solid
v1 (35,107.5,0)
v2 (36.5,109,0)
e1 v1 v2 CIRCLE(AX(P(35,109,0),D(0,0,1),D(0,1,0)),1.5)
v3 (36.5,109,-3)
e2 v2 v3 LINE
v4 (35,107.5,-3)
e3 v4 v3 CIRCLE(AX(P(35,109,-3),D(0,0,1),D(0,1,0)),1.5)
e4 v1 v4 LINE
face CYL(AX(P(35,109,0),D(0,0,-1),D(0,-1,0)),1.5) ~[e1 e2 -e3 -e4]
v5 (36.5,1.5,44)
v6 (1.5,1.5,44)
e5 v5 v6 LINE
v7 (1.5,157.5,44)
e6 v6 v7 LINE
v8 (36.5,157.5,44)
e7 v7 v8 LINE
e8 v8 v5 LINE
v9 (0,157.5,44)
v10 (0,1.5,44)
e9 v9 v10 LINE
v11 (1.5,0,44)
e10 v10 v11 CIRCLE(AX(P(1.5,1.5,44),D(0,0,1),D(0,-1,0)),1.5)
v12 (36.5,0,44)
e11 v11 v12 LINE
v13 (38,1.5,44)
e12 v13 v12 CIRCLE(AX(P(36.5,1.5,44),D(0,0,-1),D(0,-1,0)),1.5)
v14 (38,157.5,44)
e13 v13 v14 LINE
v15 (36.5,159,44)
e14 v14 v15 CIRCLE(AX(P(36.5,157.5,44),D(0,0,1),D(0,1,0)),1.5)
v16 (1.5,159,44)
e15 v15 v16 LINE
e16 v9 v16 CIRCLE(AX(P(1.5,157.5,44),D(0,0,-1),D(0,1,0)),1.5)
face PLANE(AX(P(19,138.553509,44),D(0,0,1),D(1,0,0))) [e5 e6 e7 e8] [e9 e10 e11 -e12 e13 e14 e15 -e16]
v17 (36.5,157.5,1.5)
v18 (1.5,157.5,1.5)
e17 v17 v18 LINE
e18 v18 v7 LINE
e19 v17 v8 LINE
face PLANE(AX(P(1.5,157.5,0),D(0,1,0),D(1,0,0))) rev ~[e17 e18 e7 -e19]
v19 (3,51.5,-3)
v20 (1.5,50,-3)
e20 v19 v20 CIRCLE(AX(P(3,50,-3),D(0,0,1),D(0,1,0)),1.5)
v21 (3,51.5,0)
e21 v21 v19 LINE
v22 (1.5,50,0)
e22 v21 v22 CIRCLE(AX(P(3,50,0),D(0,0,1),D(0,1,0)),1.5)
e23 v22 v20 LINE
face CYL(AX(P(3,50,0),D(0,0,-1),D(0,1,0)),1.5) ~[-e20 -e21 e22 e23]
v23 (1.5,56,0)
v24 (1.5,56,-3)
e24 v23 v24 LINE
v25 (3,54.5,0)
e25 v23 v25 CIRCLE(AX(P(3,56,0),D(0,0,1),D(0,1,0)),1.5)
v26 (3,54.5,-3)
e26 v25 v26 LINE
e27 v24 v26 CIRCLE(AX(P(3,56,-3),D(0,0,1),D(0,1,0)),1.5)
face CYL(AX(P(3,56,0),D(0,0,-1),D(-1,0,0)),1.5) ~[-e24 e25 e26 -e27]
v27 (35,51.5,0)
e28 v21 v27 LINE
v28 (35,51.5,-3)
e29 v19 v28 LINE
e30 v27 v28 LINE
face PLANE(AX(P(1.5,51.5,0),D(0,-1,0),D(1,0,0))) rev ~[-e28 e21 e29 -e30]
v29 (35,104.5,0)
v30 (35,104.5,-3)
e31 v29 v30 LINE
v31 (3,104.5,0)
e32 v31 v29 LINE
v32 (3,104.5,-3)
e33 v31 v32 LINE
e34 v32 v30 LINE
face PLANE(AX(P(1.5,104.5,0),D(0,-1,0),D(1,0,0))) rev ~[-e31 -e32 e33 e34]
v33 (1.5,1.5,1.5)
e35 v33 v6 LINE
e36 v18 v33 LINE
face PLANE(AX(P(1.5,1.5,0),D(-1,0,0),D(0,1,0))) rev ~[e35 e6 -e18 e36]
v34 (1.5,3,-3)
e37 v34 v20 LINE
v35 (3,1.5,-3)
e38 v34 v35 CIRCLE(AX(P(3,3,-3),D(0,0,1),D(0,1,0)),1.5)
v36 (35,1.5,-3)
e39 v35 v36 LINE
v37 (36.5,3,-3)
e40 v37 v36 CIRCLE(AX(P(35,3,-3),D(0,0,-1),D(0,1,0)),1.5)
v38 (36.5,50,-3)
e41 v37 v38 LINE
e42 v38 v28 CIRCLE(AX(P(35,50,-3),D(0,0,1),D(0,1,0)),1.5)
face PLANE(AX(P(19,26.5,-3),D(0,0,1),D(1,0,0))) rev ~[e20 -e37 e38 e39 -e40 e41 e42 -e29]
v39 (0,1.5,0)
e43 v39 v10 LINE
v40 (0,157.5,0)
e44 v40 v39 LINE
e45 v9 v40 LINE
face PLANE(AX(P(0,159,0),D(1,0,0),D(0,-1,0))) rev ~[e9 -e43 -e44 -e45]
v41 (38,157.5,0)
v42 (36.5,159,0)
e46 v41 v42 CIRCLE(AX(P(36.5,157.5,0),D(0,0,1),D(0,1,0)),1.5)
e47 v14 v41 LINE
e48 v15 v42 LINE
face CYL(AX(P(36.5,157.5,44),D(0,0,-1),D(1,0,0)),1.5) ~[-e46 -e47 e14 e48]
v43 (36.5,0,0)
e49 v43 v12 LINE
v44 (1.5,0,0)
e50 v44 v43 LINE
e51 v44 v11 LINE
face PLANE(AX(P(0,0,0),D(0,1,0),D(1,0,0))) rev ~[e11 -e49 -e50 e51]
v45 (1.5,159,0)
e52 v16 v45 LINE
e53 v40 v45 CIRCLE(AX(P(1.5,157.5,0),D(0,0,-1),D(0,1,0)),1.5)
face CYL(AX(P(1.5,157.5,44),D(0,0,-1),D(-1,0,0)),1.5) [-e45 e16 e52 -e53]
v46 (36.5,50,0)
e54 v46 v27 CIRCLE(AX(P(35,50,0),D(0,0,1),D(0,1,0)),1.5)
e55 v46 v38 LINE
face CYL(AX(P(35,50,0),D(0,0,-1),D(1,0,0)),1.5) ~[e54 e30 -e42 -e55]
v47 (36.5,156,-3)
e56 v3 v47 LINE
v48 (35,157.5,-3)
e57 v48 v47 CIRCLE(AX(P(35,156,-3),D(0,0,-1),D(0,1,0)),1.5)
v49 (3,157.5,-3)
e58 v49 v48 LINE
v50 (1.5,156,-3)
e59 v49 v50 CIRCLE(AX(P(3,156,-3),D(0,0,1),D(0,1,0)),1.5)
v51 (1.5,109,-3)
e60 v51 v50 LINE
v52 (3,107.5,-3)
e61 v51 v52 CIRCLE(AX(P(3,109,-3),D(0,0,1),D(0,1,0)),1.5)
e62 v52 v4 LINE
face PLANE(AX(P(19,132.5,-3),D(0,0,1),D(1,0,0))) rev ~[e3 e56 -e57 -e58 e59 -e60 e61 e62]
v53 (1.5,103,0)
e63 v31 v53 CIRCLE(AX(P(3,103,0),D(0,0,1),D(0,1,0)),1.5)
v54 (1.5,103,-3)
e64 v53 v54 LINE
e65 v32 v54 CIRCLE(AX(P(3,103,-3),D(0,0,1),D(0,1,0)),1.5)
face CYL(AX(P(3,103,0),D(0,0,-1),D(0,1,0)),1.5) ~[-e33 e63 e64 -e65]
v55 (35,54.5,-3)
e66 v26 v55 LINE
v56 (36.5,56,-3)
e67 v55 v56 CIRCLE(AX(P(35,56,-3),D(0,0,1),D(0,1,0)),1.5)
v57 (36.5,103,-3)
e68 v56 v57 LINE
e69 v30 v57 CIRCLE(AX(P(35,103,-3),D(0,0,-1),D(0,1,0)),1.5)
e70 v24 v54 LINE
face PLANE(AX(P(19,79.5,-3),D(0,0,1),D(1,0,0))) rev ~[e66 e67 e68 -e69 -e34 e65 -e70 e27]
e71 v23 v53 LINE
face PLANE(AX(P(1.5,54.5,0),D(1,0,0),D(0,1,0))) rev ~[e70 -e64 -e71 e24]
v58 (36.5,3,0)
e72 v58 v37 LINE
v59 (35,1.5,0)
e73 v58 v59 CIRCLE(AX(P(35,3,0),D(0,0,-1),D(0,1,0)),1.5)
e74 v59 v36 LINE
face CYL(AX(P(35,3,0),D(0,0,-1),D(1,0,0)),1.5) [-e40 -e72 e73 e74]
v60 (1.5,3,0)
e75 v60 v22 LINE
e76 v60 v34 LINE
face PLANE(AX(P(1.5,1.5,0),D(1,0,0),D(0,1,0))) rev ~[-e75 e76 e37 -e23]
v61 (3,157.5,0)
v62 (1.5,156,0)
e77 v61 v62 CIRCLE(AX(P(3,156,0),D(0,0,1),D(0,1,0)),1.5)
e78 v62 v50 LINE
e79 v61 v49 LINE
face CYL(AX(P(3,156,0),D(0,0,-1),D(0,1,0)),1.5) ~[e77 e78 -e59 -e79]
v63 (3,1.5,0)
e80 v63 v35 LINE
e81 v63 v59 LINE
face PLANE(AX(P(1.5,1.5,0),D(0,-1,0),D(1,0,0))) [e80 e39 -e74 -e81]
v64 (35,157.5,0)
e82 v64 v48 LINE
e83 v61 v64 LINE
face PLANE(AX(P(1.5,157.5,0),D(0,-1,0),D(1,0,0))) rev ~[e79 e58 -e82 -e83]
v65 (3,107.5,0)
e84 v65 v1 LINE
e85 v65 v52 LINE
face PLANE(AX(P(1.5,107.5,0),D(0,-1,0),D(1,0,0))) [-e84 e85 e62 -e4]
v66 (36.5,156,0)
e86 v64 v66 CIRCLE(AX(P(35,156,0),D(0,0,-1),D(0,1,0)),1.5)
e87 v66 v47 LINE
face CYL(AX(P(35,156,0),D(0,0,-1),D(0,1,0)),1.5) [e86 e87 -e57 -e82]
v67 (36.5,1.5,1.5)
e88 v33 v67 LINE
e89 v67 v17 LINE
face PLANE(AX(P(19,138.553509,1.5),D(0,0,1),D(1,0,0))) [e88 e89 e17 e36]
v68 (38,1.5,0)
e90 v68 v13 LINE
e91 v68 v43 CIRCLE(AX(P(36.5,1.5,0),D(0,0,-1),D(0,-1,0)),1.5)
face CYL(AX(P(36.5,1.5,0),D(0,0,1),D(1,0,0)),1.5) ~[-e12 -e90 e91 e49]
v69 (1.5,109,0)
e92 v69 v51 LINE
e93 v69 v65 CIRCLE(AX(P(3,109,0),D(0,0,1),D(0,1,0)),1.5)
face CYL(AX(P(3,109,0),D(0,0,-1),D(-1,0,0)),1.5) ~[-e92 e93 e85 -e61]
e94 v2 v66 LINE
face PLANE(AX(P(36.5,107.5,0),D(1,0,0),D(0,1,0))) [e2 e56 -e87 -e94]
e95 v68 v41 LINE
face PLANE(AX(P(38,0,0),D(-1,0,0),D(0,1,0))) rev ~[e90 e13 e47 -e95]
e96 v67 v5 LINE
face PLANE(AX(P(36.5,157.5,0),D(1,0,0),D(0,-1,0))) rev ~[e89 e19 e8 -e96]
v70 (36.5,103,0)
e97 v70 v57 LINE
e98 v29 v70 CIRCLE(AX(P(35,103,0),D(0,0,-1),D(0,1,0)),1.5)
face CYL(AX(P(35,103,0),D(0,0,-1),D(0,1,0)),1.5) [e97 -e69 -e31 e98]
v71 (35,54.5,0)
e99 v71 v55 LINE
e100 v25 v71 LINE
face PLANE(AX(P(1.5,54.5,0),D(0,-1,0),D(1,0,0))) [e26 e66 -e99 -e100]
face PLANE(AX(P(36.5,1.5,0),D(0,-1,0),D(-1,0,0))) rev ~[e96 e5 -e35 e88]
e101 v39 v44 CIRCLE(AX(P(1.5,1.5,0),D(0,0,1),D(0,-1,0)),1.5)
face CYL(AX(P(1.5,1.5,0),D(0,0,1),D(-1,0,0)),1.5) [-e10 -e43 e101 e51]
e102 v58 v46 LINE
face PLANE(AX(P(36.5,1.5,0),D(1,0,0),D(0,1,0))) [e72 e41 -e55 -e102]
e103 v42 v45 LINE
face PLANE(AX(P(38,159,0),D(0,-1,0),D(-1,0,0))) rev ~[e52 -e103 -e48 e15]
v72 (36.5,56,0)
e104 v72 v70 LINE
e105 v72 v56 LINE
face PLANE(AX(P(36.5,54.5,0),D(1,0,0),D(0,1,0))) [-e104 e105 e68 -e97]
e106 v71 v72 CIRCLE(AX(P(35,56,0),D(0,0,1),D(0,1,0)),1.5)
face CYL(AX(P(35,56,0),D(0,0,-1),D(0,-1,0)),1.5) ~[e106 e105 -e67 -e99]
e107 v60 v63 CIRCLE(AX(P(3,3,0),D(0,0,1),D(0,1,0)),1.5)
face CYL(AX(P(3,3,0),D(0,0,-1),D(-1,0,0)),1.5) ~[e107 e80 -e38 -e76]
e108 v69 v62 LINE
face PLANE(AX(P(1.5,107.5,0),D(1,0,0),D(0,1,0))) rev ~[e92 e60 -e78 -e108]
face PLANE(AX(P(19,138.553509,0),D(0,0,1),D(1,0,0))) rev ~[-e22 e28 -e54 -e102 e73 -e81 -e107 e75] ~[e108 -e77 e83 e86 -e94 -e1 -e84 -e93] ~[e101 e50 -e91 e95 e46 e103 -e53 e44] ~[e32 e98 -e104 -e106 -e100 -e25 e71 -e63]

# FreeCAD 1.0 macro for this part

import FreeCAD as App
import Part
import Sketcher
from FreeCAD import Vector
Q = App.Units.Quantity


def edges_at(feature, points):
    """Names of the edges that pass closest to the given points."""
    edges = feature.Shape.Edges
    near = lambda p: min(range(len(edges)), key=lambda i: edges[i].distToShape(Part.Vertex(*p))[0])
    return sorted({f"Edge{near(p) + 1}" for p in points})

doc = App.newDocument("Part")
body = doc.addObject("PartDesign::Body", "Body")
body.AllowCompound = True

# Sketch on XY plane
sketch1 = doc.addObject("Sketcher::SketchObject", "Sketch")
body.addObject(sketch1)
sketch1.AttachmentSupport = (doc.XY_Plane, [""])
sketch1.MapMode = "FlatFace"
sketch1.addGeometry([
    Part.LineSegment(Vector(1.5, 157.5, 0), Vector(1.5, 107.5, 0)),  # 0
    Part.LineSegment(Vector(1.5, 107.5, 0), Vector(36.5, 107.5, 0)),  # 1
    Part.LineSegment(Vector(36.5, 107.5, 0), Vector(36.5, 157.5, 0)),  # 2
    Part.LineSegment(Vector(36.5, 157.5, 0), Vector(1.5, 157.5, 0)),  # 3
    Part.LineSegment(Vector(1.5, 104.5, 0), Vector(1.5, 54.5, 0)),  # 4
    Part.LineSegment(Vector(1.5, 54.5, 0), Vector(36.5, 54.5, 0)),  # 5
    Part.LineSegment(Vector(36.5, 54.5, 0), Vector(36.5, 104.5, 0)),  # 6
    Part.LineSegment(Vector(36.5, 104.5, 0), Vector(1.5, 104.5, 0)),  # 7
    Part.LineSegment(Vector(1.5, 51.5, 0), Vector(1.5, 1.5, 0)),  # 8
    Part.LineSegment(Vector(1.5, 1.5, 0), Vector(36.5, 1.5, 0)),  # 9
    Part.LineSegment(Vector(36.5, 1.5, 0), Vector(36.5, 51.5, 0)),  # 10
    Part.LineSegment(Vector(36.5, 51.5, 0), Vector(1.5, 51.5, 0)),  # 11
], False)
sketch1.addConstraint([
    Sketcher.Constraint("Coincident", 0, 2, 1, 1),
    Sketcher.Constraint("Coincident", 1, 2, 2, 1),
    Sketcher.Constraint("Coincident", 2, 2, 3, 1),
    Sketcher.Constraint("Coincident", 3, 2, 0, 1),
    Sketcher.Constraint("Coincident", 4, 2, 5, 1),
    Sketcher.Constraint("Coincident", 5, 2, 6, 1),
    Sketcher.Constraint("Coincident", 6, 2, 7, 1),
    Sketcher.Constraint("Coincident", 7, 2, 4, 1),
    Sketcher.Constraint("Coincident", 8, 2, 9, 1),
    Sketcher.Constraint("Coincident", 9, 2, 10, 1),
    Sketcher.Constraint("Coincident", 10, 2, 11, 1),
    Sketcher.Constraint("Coincident", 11, 2, 8, 1),
    Sketcher.Constraint("Vertical", 0),
    Sketcher.Constraint("Horizontal", 1),
    Sketcher.Constraint("Vertical", 2),
    Sketcher.Constraint("Horizontal", 3),
    Sketcher.Constraint("Vertical", 4),
    Sketcher.Constraint("Horizontal", 5),
    Sketcher.Constraint("Vertical", 6),
    Sketcher.Constraint("Horizontal", 7),
    Sketcher.Constraint("Vertical", 8),
    Sketcher.Constraint("Horizontal", 9),
    Sketcher.Constraint("Vertical", 10),
    Sketcher.Constraint("Horizontal", 11),
    Sketcher.Constraint("Vertical", 3, 2, 4, 2),
    Sketcher.Constraint("Vertical", 2, 2, 5, 2),
    Sketcher.Constraint("Vertical", 7, 2, 8, 2),
    Sketcher.Constraint("Vertical", 6, 2, 9, 2),
    Sketcher.Constraint("Equal", 2, 4),
    Sketcher.Constraint("Equal", 6, 8),
    Sketcher.Constraint("DistanceX", 1, 1, 1, 2, Q("35 mm")),
    Sketcher.Constraint("DistanceY", 0, 2, 0, 1, Q("50 mm")),
    Sketcher.Constraint("DistanceY", 4, 2, 0, 2, Q("53 mm")),
    Sketcher.Constraint("DistanceY", 8, 2, 4, 2, Q("53 mm")),
    Sketcher.Constraint("DistanceX", -1, 1, 0, 2, Q("1.5 mm")),
    Sketcher.Constraint("DistanceY", -1, 1, 0, 2, Q("107.5 mm")),
])
pad1 = doc.addObject("PartDesign::Pad", "Pad")
body.addObject(pad1)
pad1.Profile = sketch1
pad1.Length = 3
pad1.Reversed = True

# Sketch on XY plane
sketch2 = doc.addObject("Sketcher::SketchObject", "Sketch001")
body.addObject(sketch2)
sketch2.AttachmentSupport = (doc.XY_Plane, [""])
sketch2.MapMode = "FlatFace"
sketch2.addGeometry([
    Part.LineSegment(Vector(0, 159, 0), Vector(0, 0, 0)),
    Part.LineSegment(Vector(0, 0, 0), Vector(38, 0, 0)),
    Part.LineSegment(Vector(38, 0, 0), Vector(38, 159, 0)),
    Part.LineSegment(Vector(38, 159, 0), Vector(0, 159, 0)),
], False)
sketch2.addConstraint([
    Sketcher.Constraint("Coincident", 0, 2, 1, 1),
    Sketcher.Constraint("Coincident", 1, 2, 2, 1),
    Sketcher.Constraint("Coincident", 2, 2, 3, 1),
    Sketcher.Constraint("Coincident", 3, 2, 0, 1),
    Sketcher.Constraint("Vertical", 0),
    Sketcher.Constraint("Horizontal", 1),
    Sketcher.Constraint("Vertical", 2),
    Sketcher.Constraint("Horizontal", 3),
    Sketcher.Constraint("Coincident", 0, 2, -1, 1),
    Sketcher.Constraint("DistanceX", 1, 1, 1, 2, Q("38 mm")),
    Sketcher.Constraint("DistanceY", 0, 2, 0, 1, Q("159 mm")),
])
pad2 = doc.addObject("PartDesign::Pad", "Pad001")
body.addObject(pad2)
pad2.Profile = sketch2
pad2.Length = 1.5

# Sketch on XY plane
sketch3 = doc.addObject("Sketcher::SketchObject", "Sketch002")
body.addObject(sketch3)
sketch3.AttachmentSupport = (doc.XY_Plane, [""])
sketch3.MapMode = "FlatFace"
sketch3.addGeometry([
    Part.LineSegment(Vector(0, 159, 0), Vector(0, 0, 0)),  # 0
    Part.LineSegment(Vector(0, 0, 0), Vector(38, 0, 0)),  # 1
    Part.LineSegment(Vector(38, 0, 0), Vector(38, 159, 0)),  # 2
    Part.LineSegment(Vector(38, 159, 0), Vector(0, 159, 0)),  # 3
    Part.LineSegment(Vector(1.5, 157.5, 0), Vector(36.5, 157.5, 0)),  # 4
    Part.LineSegment(Vector(36.5, 157.5, 0), Vector(36.5, 1.5, 0)),  # 5
    Part.LineSegment(Vector(36.5, 1.5, 0), Vector(1.5, 1.5, 0)),  # 6
    Part.LineSegment(Vector(1.5, 1.5, 0), Vector(1.5, 157.5, 0)),  # 7
], False)
sketch3.addConstraint([
    Sketcher.Constraint("Coincident", 0, 2, 1, 1),
    Sketcher.Constraint("Coincident", 1, 2, 2, 1),
    Sketcher.Constraint("Coincident", 2, 2, 3, 1),
    Sketcher.Constraint("Coincident", 3, 2, 0, 1),
    Sketcher.Constraint("Coincident", 4, 2, 5, 1),
    Sketcher.Constraint("Coincident", 5, 2, 6, 1),
    Sketcher.Constraint("Coincident", 6, 2, 7, 1),
    Sketcher.Constraint("Coincident", 7, 2, 4, 1),
    Sketcher.Constraint("Vertical", 0),
    Sketcher.Constraint("Horizontal", 1),
    Sketcher.Constraint("Vertical", 2),
    Sketcher.Constraint("Horizontal", 3),
    Sketcher.Constraint("Horizontal", 4),
    Sketcher.Constraint("Vertical", 5),
    Sketcher.Constraint("Horizontal", 6),
    Sketcher.Constraint("Vertical", 7),
    Sketcher.Constraint("Coincident", 0, 2, -1, 1),
    Sketcher.Constraint("DistanceX", 1, 1, 1, 2, Q("38 mm")),
    Sketcher.Constraint("DistanceX", 4, 1, 4, 2, Q("35 mm")),
    Sketcher.Constraint("DistanceY", 0, 2, 0, 1, Q("159 mm")),
    Sketcher.Constraint("DistanceY", 5, 2, 5, 1, Q("156 mm")),
    Sketcher.Constraint("DistanceX", -1, 1, 4, 2, Q("36.5 mm")),
    Sketcher.Constraint("DistanceY", -1, 1, 4, 2, Q("157.5 mm")),
])
pad3 = doc.addObject("PartDesign::Pad", "Pad002")
body.addObject(pad3)
pad3.Profile = sketch3
pad3.Length = 44
doc.recompute()

fillet = doc.addObject("PartDesign::Fillet", "Fillet")
body.addObject(fillet)
fillet.Base = (pad3, edges_at(pad3, [
    (0, 159, 22),
    (38, 159, 22),
    (36.5, 157.5, -1.5),
    (1.5, 157.5, -1.5),
    (36.5, 107.5, -1.5),
    (1.5, 107.5, -1.5),
    (1.5, 104.5, -1.5),
    (36.5, 104.5, -1.5),
    (36.5, 54.5, -1.5),
    (36.5, 51.5, -1.5),
    (1.5, 51.5, -1.5),
    (1.5, 54.5, -1.5),
    (36.5, 1.5, -1.5),
    (38, 0, 22),
    (1.5, 1.5, -1.5),
    (0, 0, 22),
]))
fillet.Radius = 1.5

doc.recompute()
